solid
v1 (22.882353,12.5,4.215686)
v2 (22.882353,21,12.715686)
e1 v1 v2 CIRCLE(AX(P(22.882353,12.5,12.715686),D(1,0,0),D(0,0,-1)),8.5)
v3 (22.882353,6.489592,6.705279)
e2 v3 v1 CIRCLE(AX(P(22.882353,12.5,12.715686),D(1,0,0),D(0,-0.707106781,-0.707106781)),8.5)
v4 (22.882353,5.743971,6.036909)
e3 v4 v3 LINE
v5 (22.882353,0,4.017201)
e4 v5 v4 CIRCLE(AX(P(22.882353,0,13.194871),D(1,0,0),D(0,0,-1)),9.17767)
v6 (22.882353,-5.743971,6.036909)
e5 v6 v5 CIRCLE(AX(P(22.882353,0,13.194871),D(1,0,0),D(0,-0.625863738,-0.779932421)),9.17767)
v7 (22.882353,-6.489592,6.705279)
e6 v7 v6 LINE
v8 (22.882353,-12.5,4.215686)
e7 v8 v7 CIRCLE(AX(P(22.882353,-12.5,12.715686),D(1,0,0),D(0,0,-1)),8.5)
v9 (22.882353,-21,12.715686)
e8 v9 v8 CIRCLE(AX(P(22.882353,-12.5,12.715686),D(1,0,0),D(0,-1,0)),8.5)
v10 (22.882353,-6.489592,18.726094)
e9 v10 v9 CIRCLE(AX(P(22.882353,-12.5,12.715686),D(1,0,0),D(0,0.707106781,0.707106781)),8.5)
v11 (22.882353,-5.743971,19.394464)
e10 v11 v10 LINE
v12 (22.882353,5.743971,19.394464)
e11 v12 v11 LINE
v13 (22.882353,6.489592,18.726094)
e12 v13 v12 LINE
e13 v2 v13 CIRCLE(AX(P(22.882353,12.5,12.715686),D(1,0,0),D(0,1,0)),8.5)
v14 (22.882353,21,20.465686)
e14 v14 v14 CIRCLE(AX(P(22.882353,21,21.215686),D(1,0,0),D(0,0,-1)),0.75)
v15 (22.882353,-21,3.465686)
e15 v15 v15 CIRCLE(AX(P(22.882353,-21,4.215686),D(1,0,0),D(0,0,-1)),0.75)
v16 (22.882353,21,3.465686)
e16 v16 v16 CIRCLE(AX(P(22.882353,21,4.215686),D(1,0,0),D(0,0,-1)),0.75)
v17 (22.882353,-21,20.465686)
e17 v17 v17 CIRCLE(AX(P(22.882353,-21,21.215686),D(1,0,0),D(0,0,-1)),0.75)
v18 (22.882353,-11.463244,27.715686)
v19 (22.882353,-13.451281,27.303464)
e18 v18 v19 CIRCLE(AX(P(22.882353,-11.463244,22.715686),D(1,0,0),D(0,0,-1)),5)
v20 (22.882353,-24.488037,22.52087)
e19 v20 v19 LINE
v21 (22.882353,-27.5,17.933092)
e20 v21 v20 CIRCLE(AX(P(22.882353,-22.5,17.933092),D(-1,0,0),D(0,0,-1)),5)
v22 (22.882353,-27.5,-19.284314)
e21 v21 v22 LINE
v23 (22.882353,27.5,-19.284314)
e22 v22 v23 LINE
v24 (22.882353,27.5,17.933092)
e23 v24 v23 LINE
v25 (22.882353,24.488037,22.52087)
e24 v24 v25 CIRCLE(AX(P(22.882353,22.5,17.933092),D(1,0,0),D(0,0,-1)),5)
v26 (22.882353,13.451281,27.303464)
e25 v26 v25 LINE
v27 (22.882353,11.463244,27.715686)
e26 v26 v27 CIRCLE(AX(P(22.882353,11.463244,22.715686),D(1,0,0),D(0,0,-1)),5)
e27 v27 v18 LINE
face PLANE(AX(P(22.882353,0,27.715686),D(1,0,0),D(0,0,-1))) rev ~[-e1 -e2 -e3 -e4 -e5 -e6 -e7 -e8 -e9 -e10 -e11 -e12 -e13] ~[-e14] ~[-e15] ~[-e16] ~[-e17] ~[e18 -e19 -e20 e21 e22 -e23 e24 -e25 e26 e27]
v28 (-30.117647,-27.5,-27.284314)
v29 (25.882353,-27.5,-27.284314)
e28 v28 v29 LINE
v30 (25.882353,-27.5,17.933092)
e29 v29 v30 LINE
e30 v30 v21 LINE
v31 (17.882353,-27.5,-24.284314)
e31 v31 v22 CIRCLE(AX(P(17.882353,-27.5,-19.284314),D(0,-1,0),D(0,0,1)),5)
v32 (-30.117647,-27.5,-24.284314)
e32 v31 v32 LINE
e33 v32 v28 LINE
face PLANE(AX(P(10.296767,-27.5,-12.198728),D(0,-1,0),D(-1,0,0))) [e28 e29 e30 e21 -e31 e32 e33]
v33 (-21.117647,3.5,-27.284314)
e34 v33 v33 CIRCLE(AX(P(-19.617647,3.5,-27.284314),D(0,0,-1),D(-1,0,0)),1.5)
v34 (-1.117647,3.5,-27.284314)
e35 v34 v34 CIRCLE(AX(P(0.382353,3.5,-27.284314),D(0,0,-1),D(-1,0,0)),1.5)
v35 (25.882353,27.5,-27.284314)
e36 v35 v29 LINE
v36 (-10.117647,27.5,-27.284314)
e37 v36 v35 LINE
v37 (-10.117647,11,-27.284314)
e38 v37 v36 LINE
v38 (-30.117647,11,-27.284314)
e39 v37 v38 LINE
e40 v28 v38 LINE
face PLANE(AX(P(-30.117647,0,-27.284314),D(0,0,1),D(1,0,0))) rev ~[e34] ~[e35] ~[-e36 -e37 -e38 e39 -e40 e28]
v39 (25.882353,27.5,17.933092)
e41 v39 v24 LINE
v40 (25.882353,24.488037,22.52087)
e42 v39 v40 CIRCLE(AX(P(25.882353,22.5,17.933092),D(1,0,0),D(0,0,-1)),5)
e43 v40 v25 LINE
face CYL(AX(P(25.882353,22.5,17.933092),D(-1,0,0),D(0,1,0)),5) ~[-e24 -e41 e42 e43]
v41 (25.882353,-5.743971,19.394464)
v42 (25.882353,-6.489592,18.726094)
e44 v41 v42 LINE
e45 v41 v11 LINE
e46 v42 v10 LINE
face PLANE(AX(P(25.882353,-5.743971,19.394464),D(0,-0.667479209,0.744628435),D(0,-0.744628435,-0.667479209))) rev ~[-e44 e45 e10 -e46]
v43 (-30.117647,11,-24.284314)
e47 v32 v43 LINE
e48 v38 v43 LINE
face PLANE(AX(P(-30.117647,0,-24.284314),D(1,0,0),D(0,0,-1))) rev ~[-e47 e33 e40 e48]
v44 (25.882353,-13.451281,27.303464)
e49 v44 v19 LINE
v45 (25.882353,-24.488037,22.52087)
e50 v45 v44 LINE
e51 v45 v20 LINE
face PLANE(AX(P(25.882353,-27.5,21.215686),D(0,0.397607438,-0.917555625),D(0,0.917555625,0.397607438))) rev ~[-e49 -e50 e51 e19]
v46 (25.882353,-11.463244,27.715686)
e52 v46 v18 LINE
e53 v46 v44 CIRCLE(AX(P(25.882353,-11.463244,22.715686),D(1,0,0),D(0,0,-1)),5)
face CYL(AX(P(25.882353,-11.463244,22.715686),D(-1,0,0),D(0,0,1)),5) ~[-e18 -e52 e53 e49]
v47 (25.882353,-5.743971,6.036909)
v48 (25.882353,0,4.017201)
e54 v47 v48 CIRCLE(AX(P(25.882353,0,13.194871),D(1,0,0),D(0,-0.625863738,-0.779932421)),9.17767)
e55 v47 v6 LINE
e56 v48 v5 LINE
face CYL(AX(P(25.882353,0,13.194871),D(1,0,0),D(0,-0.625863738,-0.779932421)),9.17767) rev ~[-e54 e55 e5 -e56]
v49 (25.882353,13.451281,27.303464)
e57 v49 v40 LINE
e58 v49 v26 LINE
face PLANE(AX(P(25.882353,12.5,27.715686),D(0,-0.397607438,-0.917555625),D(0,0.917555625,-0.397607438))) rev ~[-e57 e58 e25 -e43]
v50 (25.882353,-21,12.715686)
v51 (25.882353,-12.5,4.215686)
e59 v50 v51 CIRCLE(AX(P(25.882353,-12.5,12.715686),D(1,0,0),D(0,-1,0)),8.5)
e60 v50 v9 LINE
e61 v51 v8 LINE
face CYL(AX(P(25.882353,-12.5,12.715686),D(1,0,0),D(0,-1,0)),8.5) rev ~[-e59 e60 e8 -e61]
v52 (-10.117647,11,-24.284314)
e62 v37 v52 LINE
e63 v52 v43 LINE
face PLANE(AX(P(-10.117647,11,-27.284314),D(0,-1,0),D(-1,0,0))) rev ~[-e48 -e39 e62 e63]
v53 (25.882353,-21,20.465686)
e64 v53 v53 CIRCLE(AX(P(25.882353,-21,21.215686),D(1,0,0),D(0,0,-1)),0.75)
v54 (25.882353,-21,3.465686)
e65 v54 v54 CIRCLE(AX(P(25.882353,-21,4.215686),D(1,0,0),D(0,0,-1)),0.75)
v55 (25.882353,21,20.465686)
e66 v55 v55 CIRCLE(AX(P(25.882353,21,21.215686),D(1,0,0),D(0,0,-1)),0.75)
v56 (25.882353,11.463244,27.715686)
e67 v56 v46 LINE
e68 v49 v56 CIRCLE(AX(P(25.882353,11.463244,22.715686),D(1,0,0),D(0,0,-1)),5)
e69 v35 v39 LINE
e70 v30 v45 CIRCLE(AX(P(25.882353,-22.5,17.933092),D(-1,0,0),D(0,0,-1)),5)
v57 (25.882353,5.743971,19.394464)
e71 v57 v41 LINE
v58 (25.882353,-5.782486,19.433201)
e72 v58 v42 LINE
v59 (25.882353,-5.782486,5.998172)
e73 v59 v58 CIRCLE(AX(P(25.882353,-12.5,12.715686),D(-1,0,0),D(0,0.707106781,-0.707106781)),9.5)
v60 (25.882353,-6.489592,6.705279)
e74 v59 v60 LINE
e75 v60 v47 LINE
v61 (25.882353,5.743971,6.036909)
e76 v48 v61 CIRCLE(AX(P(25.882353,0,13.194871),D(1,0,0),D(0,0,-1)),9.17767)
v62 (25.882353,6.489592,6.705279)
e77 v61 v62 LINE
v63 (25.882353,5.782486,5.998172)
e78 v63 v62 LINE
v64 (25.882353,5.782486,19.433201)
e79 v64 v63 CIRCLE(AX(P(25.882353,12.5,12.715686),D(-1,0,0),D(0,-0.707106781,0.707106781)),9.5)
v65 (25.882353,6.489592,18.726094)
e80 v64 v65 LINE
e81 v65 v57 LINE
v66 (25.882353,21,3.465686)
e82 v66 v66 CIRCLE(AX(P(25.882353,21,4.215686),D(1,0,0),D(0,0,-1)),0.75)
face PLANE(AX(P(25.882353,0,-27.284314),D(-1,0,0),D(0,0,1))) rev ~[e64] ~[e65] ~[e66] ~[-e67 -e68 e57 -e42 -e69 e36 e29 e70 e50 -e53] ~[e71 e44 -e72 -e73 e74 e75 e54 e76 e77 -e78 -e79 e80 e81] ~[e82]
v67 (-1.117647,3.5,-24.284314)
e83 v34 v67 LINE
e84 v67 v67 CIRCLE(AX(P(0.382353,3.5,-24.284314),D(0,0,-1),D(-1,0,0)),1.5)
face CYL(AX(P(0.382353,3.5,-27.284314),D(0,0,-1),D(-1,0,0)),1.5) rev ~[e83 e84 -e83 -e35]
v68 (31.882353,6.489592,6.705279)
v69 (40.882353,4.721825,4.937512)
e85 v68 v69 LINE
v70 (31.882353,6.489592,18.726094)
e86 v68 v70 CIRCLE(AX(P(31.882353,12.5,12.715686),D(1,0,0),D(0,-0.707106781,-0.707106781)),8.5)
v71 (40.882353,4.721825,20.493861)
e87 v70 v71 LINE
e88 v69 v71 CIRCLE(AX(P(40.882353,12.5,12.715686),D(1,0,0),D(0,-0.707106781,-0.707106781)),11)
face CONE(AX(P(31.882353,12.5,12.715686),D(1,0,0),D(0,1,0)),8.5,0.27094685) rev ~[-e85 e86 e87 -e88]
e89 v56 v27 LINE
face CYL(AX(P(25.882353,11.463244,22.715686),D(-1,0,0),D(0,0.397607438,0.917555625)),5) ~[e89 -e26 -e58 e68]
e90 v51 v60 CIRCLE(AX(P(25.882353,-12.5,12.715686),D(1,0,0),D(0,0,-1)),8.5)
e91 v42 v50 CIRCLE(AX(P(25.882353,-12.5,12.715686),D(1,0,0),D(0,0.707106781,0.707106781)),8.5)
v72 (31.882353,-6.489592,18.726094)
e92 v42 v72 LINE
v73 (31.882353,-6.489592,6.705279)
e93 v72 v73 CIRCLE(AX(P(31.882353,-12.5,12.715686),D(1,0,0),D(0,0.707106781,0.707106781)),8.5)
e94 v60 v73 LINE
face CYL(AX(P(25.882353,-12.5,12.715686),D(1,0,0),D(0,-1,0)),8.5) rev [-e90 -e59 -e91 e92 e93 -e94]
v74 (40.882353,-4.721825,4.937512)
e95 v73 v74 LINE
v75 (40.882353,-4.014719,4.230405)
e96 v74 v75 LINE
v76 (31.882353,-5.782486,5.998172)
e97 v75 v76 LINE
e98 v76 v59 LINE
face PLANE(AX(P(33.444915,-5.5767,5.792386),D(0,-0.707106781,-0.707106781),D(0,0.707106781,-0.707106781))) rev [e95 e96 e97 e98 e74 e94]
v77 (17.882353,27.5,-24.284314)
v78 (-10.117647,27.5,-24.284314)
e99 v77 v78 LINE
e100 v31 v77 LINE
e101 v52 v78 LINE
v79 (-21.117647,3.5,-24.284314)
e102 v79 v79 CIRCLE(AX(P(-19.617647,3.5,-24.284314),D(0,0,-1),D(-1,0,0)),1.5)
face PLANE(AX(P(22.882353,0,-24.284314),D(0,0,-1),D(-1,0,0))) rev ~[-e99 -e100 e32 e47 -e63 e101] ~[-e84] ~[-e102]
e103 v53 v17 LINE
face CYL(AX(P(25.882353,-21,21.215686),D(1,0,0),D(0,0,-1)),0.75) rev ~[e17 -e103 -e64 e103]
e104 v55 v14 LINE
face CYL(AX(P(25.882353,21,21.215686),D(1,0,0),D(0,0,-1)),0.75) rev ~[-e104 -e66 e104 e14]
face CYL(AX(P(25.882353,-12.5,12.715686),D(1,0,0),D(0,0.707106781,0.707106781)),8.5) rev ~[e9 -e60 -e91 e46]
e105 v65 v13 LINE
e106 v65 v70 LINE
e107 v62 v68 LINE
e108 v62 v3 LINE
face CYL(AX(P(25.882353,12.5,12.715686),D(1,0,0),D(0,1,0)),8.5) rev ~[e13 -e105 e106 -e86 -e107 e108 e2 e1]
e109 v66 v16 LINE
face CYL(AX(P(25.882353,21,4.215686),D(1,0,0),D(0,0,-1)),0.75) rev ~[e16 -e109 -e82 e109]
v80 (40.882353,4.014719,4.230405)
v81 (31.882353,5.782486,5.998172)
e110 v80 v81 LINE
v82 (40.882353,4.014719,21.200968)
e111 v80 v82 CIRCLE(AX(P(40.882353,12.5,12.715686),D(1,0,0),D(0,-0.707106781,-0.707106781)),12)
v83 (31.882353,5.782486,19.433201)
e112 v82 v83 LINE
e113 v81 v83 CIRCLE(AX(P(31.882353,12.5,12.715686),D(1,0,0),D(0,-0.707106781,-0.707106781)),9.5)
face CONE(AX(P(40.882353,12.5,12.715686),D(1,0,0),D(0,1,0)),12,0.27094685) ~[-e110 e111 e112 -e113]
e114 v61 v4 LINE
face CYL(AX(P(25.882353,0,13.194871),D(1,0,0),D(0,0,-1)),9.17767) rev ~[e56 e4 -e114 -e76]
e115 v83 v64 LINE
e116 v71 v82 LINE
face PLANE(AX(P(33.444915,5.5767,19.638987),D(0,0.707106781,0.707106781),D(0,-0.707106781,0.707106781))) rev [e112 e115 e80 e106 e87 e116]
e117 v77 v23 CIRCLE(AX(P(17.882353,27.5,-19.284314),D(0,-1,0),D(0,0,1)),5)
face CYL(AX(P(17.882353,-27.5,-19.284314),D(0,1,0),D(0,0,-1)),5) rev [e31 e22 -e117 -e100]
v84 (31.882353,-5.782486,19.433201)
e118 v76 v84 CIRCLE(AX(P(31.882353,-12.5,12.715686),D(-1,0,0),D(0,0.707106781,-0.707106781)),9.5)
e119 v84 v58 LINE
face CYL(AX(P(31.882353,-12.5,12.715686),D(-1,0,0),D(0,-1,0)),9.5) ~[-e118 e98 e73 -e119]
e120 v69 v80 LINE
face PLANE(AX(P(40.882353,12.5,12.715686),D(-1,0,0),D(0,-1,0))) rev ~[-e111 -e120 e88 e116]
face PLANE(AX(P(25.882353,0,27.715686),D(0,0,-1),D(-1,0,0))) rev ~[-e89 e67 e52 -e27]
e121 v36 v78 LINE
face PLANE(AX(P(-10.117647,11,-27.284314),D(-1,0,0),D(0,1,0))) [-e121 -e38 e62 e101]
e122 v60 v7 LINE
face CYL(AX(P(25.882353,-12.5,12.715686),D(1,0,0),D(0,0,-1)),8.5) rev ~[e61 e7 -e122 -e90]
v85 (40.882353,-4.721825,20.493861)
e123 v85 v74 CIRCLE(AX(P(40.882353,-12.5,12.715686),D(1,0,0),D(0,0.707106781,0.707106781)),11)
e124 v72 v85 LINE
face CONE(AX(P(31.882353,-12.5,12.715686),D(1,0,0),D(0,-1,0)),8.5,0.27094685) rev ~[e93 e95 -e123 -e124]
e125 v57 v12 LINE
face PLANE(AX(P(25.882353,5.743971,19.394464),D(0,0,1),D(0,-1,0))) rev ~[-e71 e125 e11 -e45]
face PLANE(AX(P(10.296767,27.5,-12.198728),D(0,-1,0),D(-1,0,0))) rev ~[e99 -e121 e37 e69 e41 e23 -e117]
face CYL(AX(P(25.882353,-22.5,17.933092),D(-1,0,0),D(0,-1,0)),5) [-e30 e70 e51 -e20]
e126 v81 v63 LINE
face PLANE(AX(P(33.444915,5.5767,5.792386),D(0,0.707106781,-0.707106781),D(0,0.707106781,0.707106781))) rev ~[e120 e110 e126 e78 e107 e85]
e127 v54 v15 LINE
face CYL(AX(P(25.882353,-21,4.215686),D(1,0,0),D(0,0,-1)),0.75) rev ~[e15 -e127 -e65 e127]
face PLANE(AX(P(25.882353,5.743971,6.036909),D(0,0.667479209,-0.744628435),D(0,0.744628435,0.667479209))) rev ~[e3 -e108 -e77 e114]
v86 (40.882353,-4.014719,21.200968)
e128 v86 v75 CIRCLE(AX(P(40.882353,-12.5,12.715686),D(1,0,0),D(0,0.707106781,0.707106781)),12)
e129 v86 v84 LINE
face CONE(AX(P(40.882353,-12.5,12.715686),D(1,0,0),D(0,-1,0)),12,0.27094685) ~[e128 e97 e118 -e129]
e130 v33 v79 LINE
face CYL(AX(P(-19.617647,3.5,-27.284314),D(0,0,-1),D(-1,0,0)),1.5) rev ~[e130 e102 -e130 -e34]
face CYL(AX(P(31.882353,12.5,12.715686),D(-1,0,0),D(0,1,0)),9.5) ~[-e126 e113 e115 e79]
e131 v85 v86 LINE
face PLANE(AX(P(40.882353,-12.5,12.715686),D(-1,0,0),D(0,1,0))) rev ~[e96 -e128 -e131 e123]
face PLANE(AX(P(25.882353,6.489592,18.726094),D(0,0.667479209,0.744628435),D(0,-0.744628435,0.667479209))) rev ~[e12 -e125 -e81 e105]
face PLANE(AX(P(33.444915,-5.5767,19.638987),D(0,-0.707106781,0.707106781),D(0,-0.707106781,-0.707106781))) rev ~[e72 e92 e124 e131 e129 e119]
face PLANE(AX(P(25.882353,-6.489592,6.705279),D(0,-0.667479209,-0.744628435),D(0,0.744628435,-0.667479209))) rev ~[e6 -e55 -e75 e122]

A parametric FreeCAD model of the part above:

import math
import FreeCAD as App
import Part
import Sketcher
Q = App.Units.Quantity


def edges_at(feature, points):
    """Names of the edges that pass closest to the given points."""
    edges = feature.Shape.Edges
    near = lambda p: min(range(len(edges)), key=lambda i: edges[i].distToShape(Part.Vertex(*p))[0])
    return sorted({f"Edge{near(p) + 1}" for p in points})


def add_polygon(sketch, points):
    """Adds a closed chain of lines whose ends are joined by coincident constraints."""
    first, n = sketch.GeometryCount, len(points)
    for a, b in zip(points, points[1:] + points[:1]):
        sketch.addGeometry(Part.LineSegment(App.Vector(*a, 0), App.Vector(*b, 0)), False)
    for i in range(n):
        sketch.addConstraint(Sketcher.Constraint("Coincident", first + i, 2, first + (i + 1) % n, 1))

doc = App.newDocument("Part")
params = doc.addObject("Spreadsheet::Sheet", "Params")
for row, (alias, value) in enumerate([
    ("sketch1_width", "56 mm"),
    ("sketch1_width2", "53 mm"),
    ("sketch1_height", "52 mm"),
    ("pad1_length", "55 mm"),
    ("sketch2_diameter", "1.5 mm"),
    ("sketch2_radius", "8.5 mm"),
    ("sketch2_width", "15 mm"),
    ("sketch2_height", "6.5 mm"),
    ("pocket1_length", "3 mm"),
    ("sketch3_width", "6 mm"),
    ("sketch3_width2", "15 mm"),
    ("sketch3_height", "1 mm"),
    ("revolution_angle", "135 deg"),
    ("sketch4_width", "6 mm"),
    ("sketch4_width2", "15 mm"),
    ("sketch4_height", "1 mm"),
    ("revolution2_angle", "135 deg"),
    ("sketch5_width", "6 mm"),
    ("sketch5_width2", "15 mm"),
    ("sketch5_height", "1 mm"),
    ("revolution3_angle", "135 deg"),
    ("sketch6_diameter", "3 mm"),
    ("sketch6_width", "20 mm"),
    ("sketch6_height", "16.5 mm"),
    ("pocket2_length", "3 mm"),
    ("fillet_radius", "5 mm"),
    ("fillet2_radius", "5 mm"),
], start=1):
    params.set(f"A{row}", alias)
    params.set(f"B{row}", "=" + value)
    params.setAlias(f"B{row}", alias)

body = doc.addObject("PartDesign::Body", "Body")

# Sketch on XZ plane
sketch1 = body.newObject("Sketcher::SketchObject", "Sketch")
sketch1.AttachmentSupport = (doc.getObject("XZ_Plane"), [""])
sketch1.MapMode = "FlatFace"
add_polygon(sketch1, [(25.9, -27.3), (-30.1, -27.3), (-30.1, -24.3), (22.9, -24.3), (22.9, 27.7), (25.9, 27.7)])  # lines 0-5
sketch1.addConstraint(Sketcher.Constraint("Horizontal", 0))
sketch1.addConstraint(Sketcher.Constraint("Vertical", 1))
sketch1.addConstraint(Sketcher.Constraint("Horizontal", 2))
sketch1.addConstraint(Sketcher.Constraint("Vertical", 3))
sketch1.addConstraint(Sketcher.Constraint("Horizontal", 4))
sketch1.addConstraint(Sketcher.Constraint("Vertical", 5))
sketch1.addConstraint(Sketcher.Constraint("Equal", 4, 1))
sketch1.addConstraint(Sketcher.Constraint("DistanceX", 0, 2, 0, 1, Q("56 mm")))
sketch1.addConstraint(Sketcher.Constraint("DistanceX", 2, 1, 2, 2, Q("53 mm")))
sketch1.addConstraint(Sketcher.Constraint("DistanceY", 3, 1, 3, 2, Q("52 mm")))
sketch1.addConstraint(Sketcher.Constraint("DistanceX", 0, 2, -1, 1, Q("30.117647 mm")))
sketch1.addConstraint(Sketcher.Constraint("DistanceY", 0, 2, -1, 1, Q("27.284314 mm")))
sketch1.setExpression("Constraints[13]", "Params.sketch1_width")
sketch1.setExpression("Constraints[14]", "Params.sketch1_width2")
sketch1.setExpression("Constraints[15]", "Params.sketch1_height")
pad1 = body.newObject("PartDesign::Pad", "Pad")
pad1.Profile = sketch1
pad1.setExpression("Length", "Params.pad1_length")
pad1.Midplane = True

# Sketch on YZ plane
sketch2 = body.newObject("Sketcher::SketchObject", "Sketch001")
sketch2.AttachmentSupport = (doc.getObject("YZ_Plane"), [""])
sketch2.MapMode = "FlatFace"
sketch2.AttachmentOffset = App.Placement(App.Vector(0, 0, 25.882353), App.Rotation())
sketch2.addGeometry(Part.ArcOfCircle(Part.Circle(App.Vector(12.5, 12.7, 0), App.Vector(0, 0, 1), 8.5), math.radians(-135), math.radians(-90)), False)  # 0
sketch2.addGeometry(Part.ArcOfCircle(Part.Circle(App.Vector(12.5, 12.7, 0), App.Vector(0, 0, 1), 8.5), math.radians(-90), math.radians(0)), False)  # 1
sketch2.addGeometry(Part.ArcOfCircle(Part.Circle(App.Vector(12.5, 12.7, 0), App.Vector(0, 0, 1), 8.5), math.radians(0), math.radians(135)), False)  # 2
sketch2.addGeometry(Part.LineSegment(App.Vector(6.5, 18.7, 0), App.Vector(5.7, 19.4, 0)), False)  # 3
sketch2.addGeometry(Part.LineSegment(App.Vector(5.7, 19.4, 0), App.Vector(-5.7, 19.4, 0)), False)  # 4
sketch2.addGeometry(Part.LineSegment(App.Vector(-5.7, 19.4, 0), App.Vector(-6.5, 18.7, 0)), False)  # 5
sketch2.addGeometry(Part.ArcOfCircle(Part.Circle(App.Vector(-12.5, 12.7, 0), App.Vector(0, 0, 1), 8.5), math.radians(45), math.radians(180)), False)  # 6
sketch2.addGeometry(Part.ArcOfCircle(Part.Circle(App.Vector(-12.5, 12.7, 0), App.Vector(0, 0, 1), 8.5), math.radians(180), math.radians(270)), False)  # 7
sketch2.addGeometry(Part.ArcOfCircle(Part.Circle(App.Vector(-12.5, 12.7, 0), App.Vector(0, 0, 1), 8.5), math.radians(-90), math.radians(-45)), False)  # 8
sketch2.addGeometry(Part.LineSegment(App.Vector(-6.5, 6.7, 0), App.Vector(-5.7, 6, 0)), False)  # 9
sketch2.addGeometry(Part.ArcOfCircle(Part.Circle(App.Vector(0, 13.2, 0), App.Vector(0, 0, 1), 9.2), math.radians(-129), math.radians(-90)), False)  # 10
sketch2.addGeometry(Part.ArcOfCircle(Part.Circle(App.Vector(0, 13.2, 0), App.Vector(0, 0, 1), 9.2), math.radians(-90), math.radians(-51)), False)  # 11
sketch2.addGeometry(Part.LineSegment(App.Vector(5.7, 6, 0), App.Vector(6.5, 6.7, 0)), False)  # 12
sketch2.addGeometry(Part.Circle(App.Vector(-21, 21.2, 0), App.Vector(0, 0, 1), 0.8), False)  # 13
sketch2.addGeometry(Part.Circle(App.Vector(-21, 4.2, 0), App.Vector(0, 0, 1), 0.8), False)  # 14
sketch2.addGeometry(Part.Circle(App.Vector(21, 21.2, 0), App.Vector(0, 0, 1), 0.8), False)  # 15
sketch2.addGeometry(Part.Circle(App.Vector(21, 4.2, 0), App.Vector(0, 0, 1), 0.8), False)  # 16
add_polygon(sketch2, [(27.5, 21.2), (27.5, 27.7), (12.5, 27.7)])  # lines 17-19
add_polygon(sketch2, [(-27.5, 21.2), (-12.5, 27.7), (-27.5, 27.7)])  # lines 20-22
sketch2.addConstraint(Sketcher.Constraint("Tangent", 0, 2, 1, 1))
sketch2.addConstraint(Sketcher.Constraint("Tangent", 1, 2, 2, 1))
sketch2.addConstraint(Sketcher.Constraint("Coincident", 2, 2, 3, 1))
sketch2.addConstraint(Sketcher.Constraint("Coincident", 3, 2, 4, 1))
sketch2.addConstraint(Sketcher.Constraint("Coincident", 4, 2, 5, 1))
sketch2.addConstraint(Sketcher.Constraint("Coincident", 5, 2, 6, 1))
sketch2.addConstraint(Sketcher.Constraint("Tangent", 6, 2, 7, 1))
sketch2.addConstraint(Sketcher.Constraint("Tangent", 7, 2, 8, 1))
sketch2.addConstraint(Sketcher.Constraint("Coincident", 8, 2, 9, 1))
sketch2.addConstraint(Sketcher.Constraint("Coincident", 9, 2, 10, 1))
sketch2.addConstraint(Sketcher.Constraint("Tangent", 10, 2, 11, 1))
sketch2.addConstraint(Sketcher.Constraint("Coincident", 11, 2, 12, 1))
sketch2.addConstraint(Sketcher.Constraint("Coincident", 12, 2, 0, 1))
sketch2.addConstraint(Sketcher.Constraint("Horizontal", 4))
sketch2.addConstraint(Sketcher.Constraint("Vertical", 17))
sketch2.addConstraint(Sketcher.Constraint("Horizontal", 18))
sketch2.addConstraint(Sketcher.Constraint("Horizontal", 21))
sketch2.addConstraint(Sketcher.Constraint("Vertical", 22))
sketch2.addConstraint(Sketcher.Constraint("Coincident", 2, 3, 0, 3))
sketch2.addConstraint(Sketcher.Constraint("Coincident", 8, 3, 6, 3))
sketch2.addConstraint(Sketcher.Constraint("Equal", 2, 6))
sketch2.addConstraint(Sketcher.Constraint("Equal", 10, 11))
sketch2.addConstraint(Sketcher.Constraint("Equal", 13, 14))
sketch2.addConstraint(Sketcher.Constraint("Equal", 14, 15))
sketch2.addConstraint(Sketcher.Constraint("Equal", 15, 16))
sketch2.addConstraint(Sketcher.Constraint("Symmetric", 0, 3, 6, 3, -2))
sketch2.addConstraint(Sketcher.Constraint("Symmetric", 13, 3, 15, 3, -2))
sketch2.addConstraint(Sketcher.Constraint("Symmetric", 14, 3, 16, 3, -2))
sketch2.addConstraint(Sketcher.Constraint("Symmetric", 9, 2, 11, 2, -2))
sketch2.addConstraint(Sketcher.Constraint("Symmetric", 18, 2, 20, 2, -2))
sketch2.addConstraint(Sketcher.Constraint("Symmetric", 19, 2, 22, 2, -2))
sketch2.addConstraint(Sketcher.Constraint("PointOnObject", 10, 2, -2))
sketch2.addConstraint(Sketcher.Constraint("Parallel", 3, 9))
sketch2.addConstraint(Sketcher.Constraint("Parallel", 5, 12))
sketch2.addConstraint(Sketcher.Constraint("Horizontal", 16, 3, 0, 2))
sketch2.addConstraint(Sketcher.Constraint("Horizontal", 8, 3, 1, 2))
sketch2.addConstraint(Sketcher.Constraint("Horizontal", 2, 2, 5, 2))
sketch2.addConstraint(Sketcher.Constraint("Horizontal", 1, 2, 6, 2))
sketch2.addConstraint(Sketcher.Constraint("Horizontal", 8, 2, 12, 2))
sketch2.addConstraint(Sketcher.Constraint("Horizontal", 15, 3, 19, 2))
sketch2.addConstraint(Sketcher.Constraint("Vertical", 13, 3, 14, 3))
sketch2.addConstraint(Sketcher.Constraint("Vertical", 2, 3, 0, 2))
sketch2.addConstraint(Sketcher.Constraint("Vertical", 16, 3, 1, 2))
sketch2.addConstraint(Sketcher.Constraint("Vertical", 8, 3, 7, 2))
sketch2.addConstraint(Sketcher.Constraint("Vertical", 5, 2, 8, 2))
sketch2.addConstraint(Sketcher.Constraint("Vertical", 4, 2, 9, 2))
sketch2.addConstraint(Sketcher.Constraint("Vertical", 0, 2, 18, 2))
sketch2.addConstraint(Sketcher.Constraint("Diameter", 13, Q("1.5 mm")))
sketch2.addConstraint(Sketcher.Constraint("Radius", 0, Q("8.5 mm")))
sketch2.addConstraint(Sketcher.Constraint("DistanceX", 18, 2, 18, 1, Q("15 mm")))
sketch2.addConstraint(Sketcher.Constraint("DistanceY", 17, 1, 17, 2, Q("6.5 mm")))
sketch2.addConstraint(Sketcher.Constraint("DistanceX", 13, 3, -1, 1, Q("21 mm")))
sketch2.addConstraint(Sketcher.Constraint("DistanceY", 14, 3, 13, 3, Q("17 mm")))
sketch2.addConstraint(Sketcher.Constraint("Radius", 10, Q("9.17767 mm")))
sketch2.addConstraint(Sketcher.Constraint("DistanceX", 4, 2, 4, 1, Q("11.487941 mm")))
sketch2.addConstraint(Sketcher.Constraint("DistanceY", -1, 1, 10, 2, Q("4.017201 mm")))
sketch2.addConstraint(Sketcher.Constraint("DistanceY", -1, 1, 8, 2, Q("6.705279 mm")))
sketch2.addConstraint(Sketcher.Constraint("DistanceX", 3, 2, 2, 2, Q("0.745622 mm")))
sketch2.setExpression("Constraints[53]", "Params.sketch2_diameter")
sketch2.setExpression("Constraints[54]", "Params.sketch2_radius")
sketch2.setExpression("Constraints[55]", "Params.sketch2_width")
sketch2.setExpression("Constraints[56]", "Params.sketch2_height")
pocket1 = body.newObject("PartDesign::Pocket", "Pocket")
pocket1.Profile = sketch2
pocket1.setExpression("Length", "Params.pocket1_length")

# Sketch on XY plane
sketch3 = body.newObject("Sketcher::SketchObject", "Sketch002")
sketch3.AttachmentSupport = (doc.getObject("XY_Plane"), [""])
sketch3.MapMode = "FlatFace"
sketch3.AttachmentOffset = App.Placement(App.Vector(0, 0, 12.715686), App.Rotation())
add_polygon(sketch3, [(25.9, 22), (25.9, 21), (31.9, 21), (40.9, 23.5), (40.9, 24.5), (31.9, 22)])  # lines 0-5
sketch3.addGeometry(Part.LineSegment(App.Vector(40.9, 12.5, 0), App.Vector(25.9, 12.5, 0)), True)  # axis
sketch3.addConstraint(Sketcher.Constraint("Vertical", 0))
sketch3.addConstraint(Sketcher.Constraint("Horizontal", 1))
sketch3.addConstraint(Sketcher.Constraint("Vertical", 3))
sketch3.addConstraint(Sketcher.Constraint("Horizontal", 5))
sketch3.addConstraint(Sketcher.Constraint("Horizontal", 6))
sketch3.addConstraint(Sketcher.Constraint("Parallel", 2, 4))
sketch3.addConstraint(Sketcher.Constraint("Vertical", 1, 2, 4, 2))
sketch3.addConstraint(Sketcher.Constraint("Vertical", 3, 2, 6, 1))
sketch3.addConstraint(Sketcher.Constraint("Vertical", 5, 2, 6, 2))
sketch3.addConstraint(Sketcher.Constraint("DistanceX", 1, 1, 1, 2, Q("6 mm")))
sketch3.addConstraint(Sketcher.Constraint("DistanceX", 6, 2, 6, 1, Q("15 mm")))
sketch3.addConstraint(Sketcher.Constraint("DistanceY", 0, 2, 0, 1, Q("1 mm")))
sketch3.addConstraint(Sketcher.Constraint("DistanceY", -1, 1, 0, 2, Q("21 mm")))
sketch3.addConstraint(Sketcher.Constraint("DistanceY", 6, 1, 2, 2, Q("11 mm")))
sketch3.addConstraint(Sketcher.Constraint("DistanceY", -1, 1, 2, 2, Q("23.5 mm")))
sketch3.addConstraint(Sketcher.Constraint("DistanceX", -1, 1, 0, 2, Q("25.882353 mm")))
sketch3.setExpression("Constraints[15]", "Params.sketch3_width")
sketch3.setExpression("Constraints[16]", "Params.sketch3_width2")
sketch3.setExpression("Constraints[17]", "Params.sketch3_height")
revolution = body.newObject("PartDesign::Revolution", "Revolution")
revolution.Profile = sketch3
revolution.ReferenceAxis = (sketch3, ["Axis0"])
revolution.setExpression("Angle", "Params.revolution_angle")
doc.recompute()

mirrored = body.newObject("PartDesign::Mirrored", "Mirrored")
mirrored.Originals = [revolution]
mirrored.MirrorPlane = (doc.getObject("XZ_Plane"), [""])
body.Tip = mirrored
doc.recompute()

datumplane = body.newObject("PartDesign::Plane", "DatumPlane")
datumplane.AttachmentSupport = (doc.getObject("XY_Plane"), [""])
datumplane.MapMode = "FlatFace"
datumplane.AttachmentOffset = App.Placement(App.Vector(0, 0, 12.715686), App.Rotation())
mirrored2 = body.newObject("PartDesign::Mirrored", "Mirrored001")
mirrored2.Originals = [revolution]
mirrored2.MirrorPlane = (datumplane, [""])
body.Tip = mirrored2

# Sketch on XY plane
sketch4 = body.newObject("Sketcher::SketchObject", "Sketch003")
sketch4.AttachmentSupport = (doc.getObject("XY_Plane"), [""])
sketch4.MapMode = "FlatFace"
sketch4.AttachmentOffset = App.Placement(App.Vector(0, 0, 12.715686), App.Rotation())
add_polygon(sketch4, [(25.9, -22), (25.9, -21), (31.9, -21), (40.9, -23.5), (40.9, -24.5), (31.9, -22)])  # lines 0-5
sketch4.addGeometry(Part.LineSegment(App.Vector(40.9, -12.5, 0), App.Vector(25.9, -12.5, 0)), True)  # axis
sketch4.addConstraint(Sketcher.Constraint("Vertical", 0))
sketch4.addConstraint(Sketcher.Constraint("Horizontal", 1))
sketch4.addConstraint(Sketcher.Constraint("Vertical", 3))
sketch4.addConstraint(Sketcher.Constraint("Horizontal", 5))
sketch4.addConstraint(Sketcher.Constraint("Horizontal", 6))
sketch4.addConstraint(Sketcher.Constraint("Parallel", 2, 4))
sketch4.addConstraint(Sketcher.Constraint("Vertical", 1, 2, 4, 2))
sketch4.addConstraint(Sketcher.Constraint("Vertical", 3, 2, 6, 1))
sketch4.addConstraint(Sketcher.Constraint("Vertical", 5, 2, 6, 2))
sketch4.addConstraint(Sketcher.Constraint("DistanceX", 1, 1, 1, 2, Q("6 mm")))
sketch4.addConstraint(Sketcher.Constraint("DistanceX", 6, 2, 6, 1, Q("15 mm")))
sketch4.addConstraint(Sketcher.Constraint("DistanceY", 0, 1, 0, 2, Q("1 mm")))
sketch4.addConstraint(Sketcher.Constraint("DistanceY", 0, 2, -1, 1, Q("21 mm")))
sketch4.addConstraint(Sketcher.Constraint("DistanceY", 2, 2, 6, 1, Q("11 mm")))
sketch4.addConstraint(Sketcher.Constraint("DistanceY", 2, 2, -1, 1, Q("23.5 mm")))
sketch4.addConstraint(Sketcher.Constraint("DistanceX", -1, 1, 0, 2, Q("25.882353 mm")))
sketch4.setExpression("Constraints[15]", "Params.sketch4_width")
sketch4.setExpression("Constraints[16]", "Params.sketch4_width2")
sketch4.setExpression("Constraints[17]", "Params.sketch4_height")
revolution2 = body.newObject("PartDesign::Revolution", "Revolution001")
revolution2.Profile = sketch4
revolution2.ReferenceAxis = (sketch4, ["Axis0"])
revolution2.setExpression("Angle", "Params.revolution2_angle")

# Sketch on XY plane
sketch5 = body.newObject("Sketcher::SketchObject", "Sketch004")
sketch5.AttachmentSupport = (doc.getObject("XY_Plane"), [""])
sketch5.MapMode = "FlatFace"
sketch5.AttachmentOffset = App.Placement(App.Vector(0, 0, 12.715686), App.Rotation())
add_polygon(sketch5, [(25.9, 21), (25.9, 22), (31.9, 22), (40.9, 24.5), (40.9, 23.5), (31.9, 21)])  # lines 0-5
sketch5.addGeometry(Part.LineSegment(App.Vector(25.9, 12.5, 0), App.Vector(40.9, 12.5, 0)), True)  # axis
sketch5.addConstraint(Sketcher.Constraint("Vertical", 0))
sketch5.addConstraint(Sketcher.Constraint("Horizontal", 1))
sketch5.addConstraint(Sketcher.Constraint("Vertical", 3))
sketch5.addConstraint(Sketcher.Constraint("Horizontal", 5))
sketch5.addConstraint(Sketcher.Constraint("Horizontal", 6))
sketch5.addConstraint(Sketcher.Constraint("Parallel", 2, 4))
sketch5.addConstraint(Sketcher.Constraint("Vertical", 1, 2, 4, 2))
sketch5.addConstraint(Sketcher.Constraint("Vertical", 5, 2, 6, 1))
sketch5.addConstraint(Sketcher.Constraint("Vertical", 3, 2, 6, 2))
sketch5.addConstraint(Sketcher.Constraint("DistanceX", 1, 1, 1, 2, Q("6 mm")))
sketch5.addConstraint(Sketcher.Constraint("DistanceX", 6, 1, 6, 2, Q("15 mm")))
sketch5.addConstraint(Sketcher.Constraint("DistanceY", 0, 1, 0, 2, Q("1 mm")))
sketch5.addConstraint(Sketcher.Constraint("DistanceY", -1, 1, 0, 2, Q("22 mm")))
sketch5.addConstraint(Sketcher.Constraint("DistanceY", 6, 1, 3, 2, Q("11 mm")))
sketch5.addConstraint(Sketcher.Constraint("DistanceY", -1, 1, 2, 2, Q("24.5 mm")))
sketch5.addConstraint(Sketcher.Constraint("DistanceX", -1, 1, 0, 2, Q("25.882353 mm")))
sketch5.setExpression("Constraints[15]", "Params.sketch5_width")
sketch5.setExpression("Constraints[16]", "Params.sketch5_width2")
sketch5.setExpression("Constraints[17]", "Params.sketch5_height")
revolution3 = body.newObject("PartDesign::Revolution", "Revolution002")
revolution3.Profile = sketch5
revolution3.ReferenceAxis = (sketch5, ["Axis0"])
revolution3.setExpression("Angle", "Params.revolution3_angle")

# Sketch on XY plane
sketch6 = body.newObject("Sketcher::SketchObject", "Sketch005")
sketch6.AttachmentSupport = (doc.getObject("XY_Plane"), [""])
sketch6.MapMode = "FlatFace"
sketch6.AttachmentOffset = App.Placement(App.Vector(0, 0, -27.284314), App.Rotation())
add_polygon(sketch6, [(-10.1, 27.5), (-10.1, 11), (-30.1, 11), (-30.1, 27.5)])  # lines 0-3
sketch6.addGeometry(Part.Circle(App.Vector(0.4, 3.5, 0), App.Vector(0, 0, 1), 1.5), False)  # 4
sketch6.addGeometry(Part.Circle(App.Vector(-19.6, 3.5, 0), App.Vector(0, 0, 1), 1.5), False)  # 5
sketch6.addConstraint(Sketcher.Constraint("Vertical", 0))
sketch6.addConstraint(Sketcher.Constraint("Horizontal", 1))
sketch6.addConstraint(Sketcher.Constraint("Vertical", 2))
sketch6.addConstraint(Sketcher.Constraint("Horizontal", 3))
sketch6.addConstraint(Sketcher.Constraint("Equal", 4, 5))
sketch6.addConstraint(Sketcher.Constraint("Horizontal", 4, 3, 5, 3))
sketch6.addConstraint(Sketcher.Constraint("Diameter", 4, Q("3 mm")))
sketch6.addConstraint(Sketcher.Constraint("DistanceX", 1, 2, 1, 1, Q("20 mm")))
sketch6.addConstraint(Sketcher.Constraint("DistanceY", 0, 2, 0, 1, Q("16.5 mm")))
sketch6.addConstraint(Sketcher.Constraint("DistanceY", -1, 1, 0, 2, Q("11 mm")))
sketch6.addConstraint(Sketcher.Constraint("DistanceX", 5, 3, 4, 3, Q("20 mm")))
sketch6.addConstraint(Sketcher.Constraint("DistanceY", 5, 3, 2, 2, Q("24 mm")))
sketch6.addConstraint(Sketcher.Constraint("DistanceX", 5, 3, 0, 2, Q("9.5 mm")))
sketch6.addConstraint(Sketcher.Constraint("DistanceX", -1, 1, 4, 3, Q("0.382353 mm")))
sketch6.setExpression("Constraints[10]", "Params.sketch6_diameter")
sketch6.setExpression("Constraints[11]", "Params.sketch6_width")
sketch6.setExpression("Constraints[12]", "Params.sketch6_height")
pocket2 = body.newObject("PartDesign::Pocket", "Pocket001")
pocket2.Profile = sketch6
pocket2.setExpression("Length", "Params.pocket2_length")
pocket2.Reversed = True
doc.recompute()

fillet = body.newObject("PartDesign::Fillet", "Fillet")
fillet.Base = (pocket2, edges_at(pocket2, [(22.882, 0, -24.284)]))
fillet.setExpression("Radius", "Params.fillet_radius")
doc.recompute()

fillet2 = body.newObject("PartDesign::Fillet", "Fillet001")
fillet2.Base = (fillet, edges_at(fillet, [
    (24.382, 12.5, 27.716),
    (24.382, 27.5, 21.216),
    (24.382, -12.5, 27.716),
    (24.382, -27.5, 21.216),
]))
fillet2.setExpression("Radius", "Params.fillet2_radius")

doc.recompute()
